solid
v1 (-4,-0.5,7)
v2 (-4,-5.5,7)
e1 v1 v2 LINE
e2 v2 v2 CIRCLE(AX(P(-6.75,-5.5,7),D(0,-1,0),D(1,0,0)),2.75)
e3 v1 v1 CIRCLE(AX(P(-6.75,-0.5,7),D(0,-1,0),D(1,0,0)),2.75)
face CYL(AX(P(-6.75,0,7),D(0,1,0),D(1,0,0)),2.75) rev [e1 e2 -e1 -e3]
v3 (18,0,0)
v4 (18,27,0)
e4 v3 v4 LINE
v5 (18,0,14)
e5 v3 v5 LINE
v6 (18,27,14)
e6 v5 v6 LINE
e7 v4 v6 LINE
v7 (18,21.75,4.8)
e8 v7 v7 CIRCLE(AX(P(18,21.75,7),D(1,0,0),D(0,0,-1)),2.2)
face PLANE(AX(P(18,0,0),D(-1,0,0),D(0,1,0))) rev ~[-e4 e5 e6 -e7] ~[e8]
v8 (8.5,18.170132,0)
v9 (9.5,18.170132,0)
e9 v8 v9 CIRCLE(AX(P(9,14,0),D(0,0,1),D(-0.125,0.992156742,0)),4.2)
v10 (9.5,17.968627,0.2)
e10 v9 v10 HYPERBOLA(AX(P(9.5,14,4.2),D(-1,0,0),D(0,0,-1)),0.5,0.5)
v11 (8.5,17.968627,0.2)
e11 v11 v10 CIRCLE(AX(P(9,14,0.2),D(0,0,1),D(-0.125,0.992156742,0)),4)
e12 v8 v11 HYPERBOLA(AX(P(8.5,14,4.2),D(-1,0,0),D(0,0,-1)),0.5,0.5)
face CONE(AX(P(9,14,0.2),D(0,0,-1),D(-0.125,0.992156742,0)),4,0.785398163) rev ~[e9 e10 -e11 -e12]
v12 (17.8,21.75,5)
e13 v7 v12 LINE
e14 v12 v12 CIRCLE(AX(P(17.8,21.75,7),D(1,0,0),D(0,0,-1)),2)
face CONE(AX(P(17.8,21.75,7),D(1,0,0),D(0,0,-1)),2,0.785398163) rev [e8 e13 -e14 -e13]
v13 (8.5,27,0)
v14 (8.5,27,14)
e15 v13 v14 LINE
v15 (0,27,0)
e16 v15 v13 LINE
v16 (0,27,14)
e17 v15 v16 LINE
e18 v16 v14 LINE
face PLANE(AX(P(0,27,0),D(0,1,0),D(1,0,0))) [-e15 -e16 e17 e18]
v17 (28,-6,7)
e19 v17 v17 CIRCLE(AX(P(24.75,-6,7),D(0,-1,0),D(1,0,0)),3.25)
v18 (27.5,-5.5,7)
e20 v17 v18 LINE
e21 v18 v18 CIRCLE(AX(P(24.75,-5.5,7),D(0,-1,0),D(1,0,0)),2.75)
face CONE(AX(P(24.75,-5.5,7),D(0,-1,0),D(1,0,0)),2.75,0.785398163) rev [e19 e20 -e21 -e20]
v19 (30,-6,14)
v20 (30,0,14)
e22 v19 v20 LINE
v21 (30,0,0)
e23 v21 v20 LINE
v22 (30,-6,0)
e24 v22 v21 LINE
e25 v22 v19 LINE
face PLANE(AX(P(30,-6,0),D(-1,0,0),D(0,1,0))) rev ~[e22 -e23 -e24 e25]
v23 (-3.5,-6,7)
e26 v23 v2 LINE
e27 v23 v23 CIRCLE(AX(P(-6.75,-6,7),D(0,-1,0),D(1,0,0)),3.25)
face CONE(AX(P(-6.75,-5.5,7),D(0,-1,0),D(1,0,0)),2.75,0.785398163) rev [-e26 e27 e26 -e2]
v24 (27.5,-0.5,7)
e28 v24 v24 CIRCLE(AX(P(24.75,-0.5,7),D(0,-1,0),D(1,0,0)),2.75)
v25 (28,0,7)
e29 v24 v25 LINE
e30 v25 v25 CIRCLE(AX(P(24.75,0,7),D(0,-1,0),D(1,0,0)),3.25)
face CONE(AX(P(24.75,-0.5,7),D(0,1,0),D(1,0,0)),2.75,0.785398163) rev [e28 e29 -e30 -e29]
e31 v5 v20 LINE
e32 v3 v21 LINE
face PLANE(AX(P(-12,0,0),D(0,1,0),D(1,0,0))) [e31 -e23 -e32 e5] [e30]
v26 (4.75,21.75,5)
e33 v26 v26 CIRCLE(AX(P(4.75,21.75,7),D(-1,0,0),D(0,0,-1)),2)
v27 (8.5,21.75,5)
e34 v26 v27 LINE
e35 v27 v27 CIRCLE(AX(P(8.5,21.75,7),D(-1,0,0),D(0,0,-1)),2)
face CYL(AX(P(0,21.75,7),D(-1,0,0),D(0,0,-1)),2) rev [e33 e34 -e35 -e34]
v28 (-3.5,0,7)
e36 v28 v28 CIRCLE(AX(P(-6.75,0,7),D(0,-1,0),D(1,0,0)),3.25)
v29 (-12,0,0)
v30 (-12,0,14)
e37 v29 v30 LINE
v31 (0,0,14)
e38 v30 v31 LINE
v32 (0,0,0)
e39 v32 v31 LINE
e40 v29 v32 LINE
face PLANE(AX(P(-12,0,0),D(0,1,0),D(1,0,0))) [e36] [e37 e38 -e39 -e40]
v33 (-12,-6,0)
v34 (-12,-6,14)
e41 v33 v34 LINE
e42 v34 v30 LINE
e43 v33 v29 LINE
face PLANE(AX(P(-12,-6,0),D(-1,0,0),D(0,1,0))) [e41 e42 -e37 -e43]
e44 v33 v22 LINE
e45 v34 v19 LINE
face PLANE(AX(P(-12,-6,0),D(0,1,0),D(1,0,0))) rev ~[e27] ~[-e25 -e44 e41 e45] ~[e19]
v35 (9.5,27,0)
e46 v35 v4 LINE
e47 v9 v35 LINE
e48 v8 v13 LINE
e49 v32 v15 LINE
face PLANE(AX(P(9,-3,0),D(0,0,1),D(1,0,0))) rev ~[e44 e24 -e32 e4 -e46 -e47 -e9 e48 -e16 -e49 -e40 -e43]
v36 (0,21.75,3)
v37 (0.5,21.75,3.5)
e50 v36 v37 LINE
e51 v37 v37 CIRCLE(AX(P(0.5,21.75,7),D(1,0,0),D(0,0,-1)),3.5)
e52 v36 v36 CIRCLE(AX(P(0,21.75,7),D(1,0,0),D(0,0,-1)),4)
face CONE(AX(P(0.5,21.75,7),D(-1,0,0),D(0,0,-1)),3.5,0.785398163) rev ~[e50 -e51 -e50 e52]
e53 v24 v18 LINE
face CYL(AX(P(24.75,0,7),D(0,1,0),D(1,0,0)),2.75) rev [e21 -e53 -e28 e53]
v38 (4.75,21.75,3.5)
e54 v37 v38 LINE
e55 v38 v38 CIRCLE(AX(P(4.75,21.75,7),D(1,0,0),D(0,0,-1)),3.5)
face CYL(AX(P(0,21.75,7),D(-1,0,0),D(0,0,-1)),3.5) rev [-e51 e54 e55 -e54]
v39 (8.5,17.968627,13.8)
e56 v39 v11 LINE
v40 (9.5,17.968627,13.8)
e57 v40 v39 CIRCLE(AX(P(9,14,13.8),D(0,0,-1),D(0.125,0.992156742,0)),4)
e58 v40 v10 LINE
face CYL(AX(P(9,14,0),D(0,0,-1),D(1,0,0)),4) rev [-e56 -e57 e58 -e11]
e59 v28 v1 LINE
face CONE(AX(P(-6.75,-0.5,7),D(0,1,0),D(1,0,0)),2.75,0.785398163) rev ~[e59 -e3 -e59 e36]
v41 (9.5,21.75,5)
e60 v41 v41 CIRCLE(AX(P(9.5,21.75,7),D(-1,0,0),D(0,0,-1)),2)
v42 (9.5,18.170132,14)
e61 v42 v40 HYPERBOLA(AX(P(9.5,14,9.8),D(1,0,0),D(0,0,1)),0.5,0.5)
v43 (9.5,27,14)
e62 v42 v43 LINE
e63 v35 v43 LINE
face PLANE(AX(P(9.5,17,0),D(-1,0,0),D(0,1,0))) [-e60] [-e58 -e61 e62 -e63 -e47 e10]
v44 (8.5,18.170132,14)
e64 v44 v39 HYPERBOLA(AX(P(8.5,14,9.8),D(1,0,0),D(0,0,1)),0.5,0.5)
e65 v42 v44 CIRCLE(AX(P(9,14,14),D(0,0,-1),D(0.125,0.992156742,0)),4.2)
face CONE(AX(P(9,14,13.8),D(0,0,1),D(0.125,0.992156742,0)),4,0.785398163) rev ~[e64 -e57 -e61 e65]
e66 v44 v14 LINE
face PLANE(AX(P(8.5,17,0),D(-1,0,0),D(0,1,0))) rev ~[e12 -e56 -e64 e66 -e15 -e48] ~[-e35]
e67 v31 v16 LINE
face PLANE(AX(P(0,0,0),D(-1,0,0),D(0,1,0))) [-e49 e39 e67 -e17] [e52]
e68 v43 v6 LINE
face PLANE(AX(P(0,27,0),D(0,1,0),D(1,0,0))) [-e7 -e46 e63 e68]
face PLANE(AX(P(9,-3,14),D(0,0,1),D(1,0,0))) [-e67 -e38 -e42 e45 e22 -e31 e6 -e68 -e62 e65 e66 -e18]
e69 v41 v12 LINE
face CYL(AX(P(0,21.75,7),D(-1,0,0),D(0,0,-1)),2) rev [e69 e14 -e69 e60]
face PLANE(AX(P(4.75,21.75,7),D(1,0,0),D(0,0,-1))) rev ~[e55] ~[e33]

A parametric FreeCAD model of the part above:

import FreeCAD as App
import Part
import Sketcher

V = App.Vector
Q = App.Units.Quantity


def edges_at(feature, points):
    """Names of the edges that pass closest to the given points."""
    edges = feature.Shape.Edges
    near = lambda p: min(range(len(edges)), key=lambda i: edges[i].distToShape(Part.Vertex(*p))[0])
    return sorted({f"Edge{near(p) + 1}" for p in points})

doc = App.newDocument("Part")
body = doc.addObject("PartDesign::Body", "Body")

sketch1 = body.newObject("Sketcher::SketchObject", "Sketch")
sketch1.AttachmentSupport = (doc.getObject("YZ_Plane"), [""])
sketch1.MapMode = "FlatFace"
sketch1.addGeometry(Part.Circle(V(21.75, 7, 0), V(0, 0, 1), 3.5), False)
sketch1.addConstraint([
    Sketcher.Constraint("Diameter", 0, Q("7 mm")),
    Sketcher.Constraint("DistanceY", -1, 1, 0, 3, Q("7 mm")),
    Sketcher.Constraint("DistanceX", -1, 1, 0, 3, Q("21.75 mm")),
])
pad1 = body.newObject("PartDesign::Pad", "Pad")
pad1.Profile = sketch1
pad1.Length = 4.75
body2 = doc.addObject("PartDesign::Body", "Body001")

sketch2 = body2.newObject("Sketcher::SketchObject", "Sketch001")
sketch2.AttachmentSupport = (doc.getObject("YZ_Plane001"), [""])
sketch2.MapMode = "FlatFace"
sketch2.addGeometry(Part.Circle(V(21.75, 7, 0), V(0, 0, 1), 2), False)
sketch2.addConstraint([
    Sketcher.Constraint("Diameter", 0, Q("4 mm")),
    Sketcher.Constraint("DistanceY", -1, 1, 0, 3, Q("7 mm")),
    Sketcher.Constraint("DistanceX", -1, 1, 0, 3, Q("21.75 mm")),
])
pad2 = body2.newObject("PartDesign::Pad", "Pad001")
pad2.Profile = sketch2
pad2.Length = 18
body3 = doc.addObject("PartDesign::Body", "Body002")

sketch3 = body3.newObject("Sketcher::SketchObject", "Sketch002")
sketch3.AttachmentSupport = (doc.getObject("XY_Plane002"), [""])
sketch3.MapMode = "FlatFace"
sketch3.addGeometry(Part.Circle(V(9, 14, 0), V(0, 0, 1), 4), False)
sketch3.addConstraint([
    Sketcher.Constraint("Diameter", 0, Q("8 mm")),
    Sketcher.Constraint("DistanceX", -1, 1, 0, 3, Q("9 mm")),
    Sketcher.Constraint("DistanceY", -1, 1, 0, 3, Q("14 mm")),
])
pad3 = body3.newObject("PartDesign::Pad", "Pad002")
pad3.Profile = sketch3
pad3.Length = 14
body4 = doc.addObject("PartDesign::Body", "Body003")

sketch4 = body4.newObject("Sketcher::SketchObject", "Sketch003")
sketch4.AttachmentSupport = (doc.getObject("XY_Plane003"), [""])
sketch4.MapMode = "FlatFace"
sketch4.addGeometry([
    Part.LineSegment(V(8.5, 27, 0), V(8.5, 17, 0)),
    Part.LineSegment(V(8.5, 17, 0), V(9.5, 17, 0)),
    Part.LineSegment(V(9.5, 17, 0), V(9.5, 27, 0)),
    Part.LineSegment(V(9.5, 27, 0), V(8.5, 27, 0)),
], False)
sketch4.addConstraint([
    Sketcher.Constraint("Coincident", 0, 2, 1, 1),
    Sketcher.Constraint("Coincident", 1, 2, 2, 1),
    Sketcher.Constraint("Coincident", 2, 2, 3, 1),
    Sketcher.Constraint("Coincident", 3, 2, 0, 1),
    Sketcher.Constraint("Vertical", 0),
    Sketcher.Constraint("Horizontal", 1),
    Sketcher.Constraint("Vertical", 2),
    Sketcher.Constraint("Horizontal", 3),
    Sketcher.Constraint("DistanceX", 1, 1, 1, 2, Q("1 mm")),
    Sketcher.Constraint("DistanceY", 0, 2, 0, 1, Q("10 mm")),
    Sketcher.Constraint("DistanceY", -1, 1, 0, 2, Q("17 mm")),
    Sketcher.Constraint("DistanceX", -1, 1, 0, 2, Q("8.5 mm")),
])
pad4 = body4.newObject("PartDesign::Pad", "Pad003")
pad4.Profile = sketch4
pad4.Length = 14
body5 = doc.addObject("PartDesign::Body", "Body004")

sketch5 = body5.newObject("Sketcher::SketchObject", "Sketch004")
sketch5.AttachmentSupport = (doc.getObject("XZ_Plane004"), [""])
sketch5.MapMode = "FlatFace"
sketch5.addGeometry(Part.Circle(V(24.75, 7, 0), V(0, 0, 1), 2.75), False)
sketch5.addConstraint([
    Sketcher.Constraint("Diameter", 0, Q("5.5 mm")),
    Sketcher.Constraint("DistanceY", -1, 1, 0, 3, Q("7 mm")),
    Sketcher.Constraint("DistanceX", -1, 1, 0, 3, Q("24.75 mm")),
])
pad5 = body5.newObject("PartDesign::Pad", "Pad004")
pad5.Profile = sketch5
pad5.Length = 6
body6 = doc.addObject("PartDesign::Body", "Body005")

sketch6 = body6.newObject("Sketcher::SketchObject", "Sketch005")
sketch6.AttachmentSupport = (doc.getObject("XZ_Plane005"), [""])
sketch6.MapMode = "FlatFace"
sketch6.addGeometry(Part.Circle(V(-6.75, 7, 0), V(0, 0, 1), 2.75), False)
sketch6.addConstraint([
    Sketcher.Constraint("Diameter", 0, Q("5.5 mm")),
    Sketcher.Constraint("DistanceY", -1, 1, 0, 3, Q("7 mm")),
    Sketcher.Constraint("DistanceX", 0, 3, -1, 1, Q("6.75 mm")),
])
pad6 = body6.newObject("PartDesign::Pad", "Pad005")
pad6.Profile = sketch6
pad6.Length = 6
body7 = doc.addObject("PartDesign::Body", "Body006")

sketch7 = body7.newObject("Sketcher::SketchObject", "Sketch006")
sketch7.AttachmentSupport = (doc.getObject("XY_Plane006"), [""])
sketch7.MapMode = "FlatFace"
sketch7.addGeometry([
    Part.LineSegment(V(-12, 0, 0), V(-12, -6, 0)),
    Part.LineSegment(V(-12, -6, 0), V(30, -6, 0)),
    Part.LineSegment(V(30, -6, 0), V(30, 0, 0)),
    Part.LineSegment(V(30, 0, 0), V(-12, 0, 0)),
], False)
sketch7.addConstraint([
    Sketcher.Constraint("Coincident", 0, 2, 1, 1),
    Sketcher.Constraint("Coincident", 1, 2, 2, 1),
    Sketcher.Constraint("Coincident", 2, 2, 3, 1),
    Sketcher.Constraint("Coincident", 3, 2, 0, 1),
    Sketcher.Constraint("Vertical", 0),
    Sketcher.Constraint("Horizontal", 1),
    Sketcher.Constraint("Vertical", 2),
    Sketcher.Constraint("Horizontal", 3),
    Sketcher.Constraint("PointOnObject", 2, 2, -1),
    Sketcher.Constraint("DistanceX", 1, 1, 1, 2, Q("42 mm")),
    Sketcher.Constraint("DistanceY", 0, 2, 0, 1, Q("6 mm")),
    Sketcher.Constraint("DistanceX", 0, 2, -1, 1, Q("12 mm")),
])
pad7 = body7.newObject("PartDesign::Pad", "Pad006")
pad7.Profile = sketch7
pad7.Length = 14
body8 = doc.addObject("PartDesign::Body", "Body007")

sketch8 = body8.newObject("Sketcher::SketchObject", "Sketch007")
sketch8.AttachmentSupport = (doc.getObject("XY_Plane007"), [""])
sketch8.MapMode = "FlatFace"
sketch8.addGeometry([
    Part.LineSegment(V(0, 27, 0), V(0, 0, 0)),
    Part.LineSegment(V(0, 0, 0), V(18, 0, 0)),
    Part.LineSegment(V(18, 0, 0), V(18, 27, 0)),
    Part.LineSegment(V(18, 27, 0), V(0, 27, 0)),
], False)
sketch8.addConstraint([
    Sketcher.Constraint("Coincident", 0, 2, 1, 1),
    Sketcher.Constraint("Coincident", 1, 2, 2, 1),
    Sketcher.Constraint("Coincident", 2, 2, 3, 1),
    Sketcher.Constraint("Coincident", 3, 2, 0, 1),
    Sketcher.Constraint("Vertical", 0),
    Sketcher.Constraint("Horizontal", 1),
    Sketcher.Constraint("Vertical", 2),
    Sketcher.Constraint("Horizontal", 3),
    Sketcher.Constraint("Coincident", 0, 2, -1, 1),
    Sketcher.Constraint("DistanceX", 1, 1, 1, 2, Q("18 mm")),
    Sketcher.Constraint("DistanceY", 0, 2, 0, 1, Q("27 mm")),
])
pad8 = body8.newObject("PartDesign::Pad", "Pad007")
pad8.Profile = sketch8
pad8.Length = 14
doc.recompute()

boolean = body8.newObject("PartDesign::Boolean", "Boolean")
boolean.Type = "Fuse"
boolean.addObjects([body7])
doc.recompute()

boolean2 = body8.newObject("PartDesign::Boolean", "Boolean001")
boolean2.Type = "Cut"
boolean2.addObjects([body6])
doc.recompute()

boolean3 = body8.newObject("PartDesign::Boolean", "Boolean002")
boolean3.Type = "Cut"
boolean3.addObjects([body5])
doc.recompute()

boolean4 = body8.newObject("PartDesign::Boolean", "Boolean003")
boolean4.Type = "Cut"
boolean4.addObjects([body4])
doc.recompute()

boolean5 = body8.newObject("PartDesign::Boolean", "Boolean004")
boolean5.Type = "Cut"
boolean5.addObjects([body3])
doc.recompute()

boolean6 = body8.newObject("PartDesign::Boolean", "Boolean005")
boolean6.Type = "Cut"
boolean6.addObjects([body2])
doc.recompute()

boolean7 = body8.newObject("PartDesign::Boolean", "Boolean006")
boolean7.Type = "Cut"
boolean7.addObjects([body])
doc.recompute()

chamfer = body8.newObject("PartDesign::Chamfer", "Chamfer")
chamfer.Base = (boolean7, edges_at(boolean7, [
    (0, 21.75, 10.5),
    (-9.5, 0, 7),
    (22, 0, 7),
    (-9.5, -6, 7),
    (22, -6, 7),
]))
chamfer.Size = 0.5
doc.recompute()

chamfer2 = body8.newObject("PartDesign::Chamfer", "Chamfer001")
chamfer2.Base = (chamfer, edges_at(chamfer, [
    (9, 10, 14),
    (9, 10, 14),
    (9, 10, 0),
    (9, 10, 0),
    (18, 21.75, 9),
]))
chamfer2.Size = 0.2

doc.recompute()
